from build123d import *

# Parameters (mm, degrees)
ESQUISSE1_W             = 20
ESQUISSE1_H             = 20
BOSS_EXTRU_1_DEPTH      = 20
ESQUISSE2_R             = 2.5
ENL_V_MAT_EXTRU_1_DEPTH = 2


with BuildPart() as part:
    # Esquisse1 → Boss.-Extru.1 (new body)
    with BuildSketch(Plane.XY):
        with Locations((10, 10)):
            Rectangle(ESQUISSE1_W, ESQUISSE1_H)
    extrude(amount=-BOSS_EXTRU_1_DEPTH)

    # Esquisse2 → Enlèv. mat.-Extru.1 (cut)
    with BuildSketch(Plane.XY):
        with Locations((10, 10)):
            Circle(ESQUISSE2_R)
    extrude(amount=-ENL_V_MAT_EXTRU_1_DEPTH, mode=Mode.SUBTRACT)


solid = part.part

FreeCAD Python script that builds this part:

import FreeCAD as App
import Part
import Sketcher

doc = App.newDocument("Part")
params = doc.addObject("Spreadsheet::Sheet", "Params")
for row, (alias, value) in enumerate([
    ("sketch1_width", "20 mm"),
    ("pad1_length", "20 mm"),
    ("sketch2_diameter", "5 mm"),
    ("pocket1_length", "2 mm"),
], start=1):
    params.set(f"A{row}", alias)
    params.set(f"B{row}", "=" + value)
    params.setAlias(f"B{row}", alias)

body = doc.addObject("PartDesign::Body", "Body")

sketch1 = body.newObject("Sketcher::SketchObject", "Sketch")
sketch1.AttachmentSupport = (doc.getObject("XY_Plane"), [""])
sketch1.MapMode = "FlatFace"
sketch1.addGeometry(Part.LineSegment(App.Vector(0, 20, 0), App.Vector(0, 0, 0)), False)
sketch1.addGeometry(Part.LineSegment(App.Vector(0, 0, 0), App.Vector(20, 0, 0)), False)
sketch1.addGeometry(Part.LineSegment(App.Vector(20, 0, 0), App.Vector(20, 20, 0)), False)
sketch1.addGeometry(Part.LineSegment(App.Vector(20, 20, 0), App.Vector(0, 20, 0)), False)
sketch1.addConstraint(Sketcher.Constraint("Coincident", 0, 2, 1, 1))
sketch1.addConstraint(Sketcher.Constraint("Coincident", 1, 2, 2, 1))
sketch1.addConstraint(Sketcher.Constraint("Coincident", 2, 2, 3, 1))
sketch1.addConstraint(Sketcher.Constraint("Coincident", 3, 2, 0, 1))
sketch1.addConstraint(Sketcher.Constraint("Vertical", 0))
sketch1.addConstraint(Sketcher.Constraint("Horizontal", 1))
sketch1.addConstraint(Sketcher.Constraint("Vertical", 2))
sketch1.addConstraint(Sketcher.Constraint("Horizontal", 3))
sketch1.addConstraint(Sketcher.Constraint("Coincident", 0, 2, -1, 1))
sketch1.addConstraint(Sketcher.Constraint("Equal", 3, 0))
sketch1.addConstraint(Sketcher.Constraint("DistanceX", 1, 1, 1, 2, 20.0))
sketch1.setExpression("Constraints[10]", "Params.sketch1_width")
pad1 = body.newObject("PartDesign::Pad", "Pad")
pad1.Profile = sketch1
pad1.setExpression("Length", "Params.pad1_length")
pad1.Reversed = True

sketch2 = body.newObject("Sketcher::SketchObject", "Sketch001")
sketch2.AttachmentSupport = (doc.getObject("XY_Plane"), [""])
sketch2.MapMode = "FlatFace"
sketch2.addGeometry(Part.Circle(App.Vector(10, 10, 0), App.Vector(0, 0, 1), 2.5), False)
sketch2.addConstraint(Sketcher.Constraint("Diameter", 0, 5.0))
sketch2.addConstraint(Sketcher.Constraint("DistanceX", -1, 1, 0, 3, 10.0))
sketch2.addConstraint(Sketcher.Constraint("DistanceY", -1, 1, 0, 3, 10.0))
sketch2.setExpression("Constraints[0]", "Params.sketch2_diameter")
pocket1 = body.newObject("PartDesign::Pocket", "Pocket")
pocket1.Profile = sketch2
pocket1.setExpression("Length", "Params.pocket1_length")

doc.recompute()
